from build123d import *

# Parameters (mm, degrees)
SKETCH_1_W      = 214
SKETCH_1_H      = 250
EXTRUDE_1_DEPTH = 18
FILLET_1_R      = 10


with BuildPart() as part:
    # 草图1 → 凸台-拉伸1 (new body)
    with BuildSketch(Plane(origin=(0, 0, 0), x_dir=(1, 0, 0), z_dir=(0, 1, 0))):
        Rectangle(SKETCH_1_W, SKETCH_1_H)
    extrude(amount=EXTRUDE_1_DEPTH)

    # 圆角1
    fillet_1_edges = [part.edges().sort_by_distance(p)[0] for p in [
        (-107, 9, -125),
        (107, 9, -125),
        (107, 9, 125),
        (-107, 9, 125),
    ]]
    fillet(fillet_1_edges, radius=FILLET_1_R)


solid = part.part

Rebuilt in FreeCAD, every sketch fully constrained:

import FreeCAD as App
import Part
import Sketcher
Q = App.Units.Quantity


def edges_at(feature, points):
    """Names of the edges that pass closest to the given points."""
    edges = feature.Shape.Edges
    near = lambda p: min(range(len(edges)), key=lambda i: edges[i].distToShape(Part.Vertex(*p))[0])
    return sorted({f"Edge{near(p) + 1}" for p in points})

doc = App.newDocument("Part")
params = doc.addObject("Spreadsheet::Sheet", "Params")
for row, (alias, value) in enumerate([
    ("sketch1_width", "214 mm"),
    ("sketch1_height", "250 mm"),
    ("pad1_length", "18 mm"),
    ("fillet_radius", "10 mm"),
], start=1):
    params.set(f"A{row}", alias)
    params.set(f"B{row}", "=" + value)
    params.setAlias(f"B{row}", alias)

body = doc.addObject("PartDesign::Body", "Body")

# Sketch on XZ plane
sketch1 = body.newObject("Sketcher::SketchObject", "Sketch")
sketch1.AttachmentSupport = (doc.getObject("XZ_Plane"), [""])
sketch1.MapMode = "FlatFace"
sketch1.addGeometry(Part.LineSegment(App.Vector(-107, -125, 0), App.Vector(-107, 125, 0)), False)
sketch1.addGeometry(Part.LineSegment(App.Vector(-107, 125, 0), App.Vector(107, 125, 0)), False)
sketch1.addGeometry(Part.LineSegment(App.Vector(107, 125, 0), App.Vector(107, -125, 0)), False)
sketch1.addGeometry(Part.LineSegment(App.Vector(107, -125, 0), App.Vector(-107, -125, 0)), False)
sketch1.addConstraint(Sketcher.Constraint("Coincident", 0, 2, 1, 1))
sketch1.addConstraint(Sketcher.Constraint("Coincident", 1, 2, 2, 1))
sketch1.addConstraint(Sketcher.Constraint("Coincident", 2, 2, 3, 1))
sketch1.addConstraint(Sketcher.Constraint("Coincident", 3, 2, 0, 1))
sketch1.addConstraint(Sketcher.Constraint("Vertical", 0))
sketch1.addConstraint(Sketcher.Constraint("Horizontal", 1))
sketch1.addConstraint(Sketcher.Constraint("Vertical", 2))
sketch1.addConstraint(Sketcher.Constraint("Horizontal", 3))
sketch1.addConstraint(Sketcher.Constraint("Symmetric", 0, 2, 2, 2, -1, 1))
sketch1.addConstraint(Sketcher.Constraint("DistanceX", 1, 1, 1, 2, Q("214 mm")))
sketch1.addConstraint(Sketcher.Constraint("DistanceY", 0, 1, 0, 2, Q("250 mm")))
sketch1.setExpression("Constraints[9]", "Params.sketch1_width")
sketch1.setExpression("Constraints[10]", "Params.sketch1_height")
pad1 = body.newObject("PartDesign::Pad", "Pad")
pad1.Profile = sketch1
pad1.setExpression("Length", "Params.pad1_length")
pad1.Reversed = True
doc.recompute()

fillet = body.newObject("PartDesign::Fillet", "Fillet")
fillet.Base = (pad1, edges_at(pad1, [
    (-107, 9, -125),
    (107, 9, -125),
    (107, 9, 125),
    (-107, 9, 125),
]))
fillet.setExpression("Radius", "Params.fillet_radius")

doc.recompute()
